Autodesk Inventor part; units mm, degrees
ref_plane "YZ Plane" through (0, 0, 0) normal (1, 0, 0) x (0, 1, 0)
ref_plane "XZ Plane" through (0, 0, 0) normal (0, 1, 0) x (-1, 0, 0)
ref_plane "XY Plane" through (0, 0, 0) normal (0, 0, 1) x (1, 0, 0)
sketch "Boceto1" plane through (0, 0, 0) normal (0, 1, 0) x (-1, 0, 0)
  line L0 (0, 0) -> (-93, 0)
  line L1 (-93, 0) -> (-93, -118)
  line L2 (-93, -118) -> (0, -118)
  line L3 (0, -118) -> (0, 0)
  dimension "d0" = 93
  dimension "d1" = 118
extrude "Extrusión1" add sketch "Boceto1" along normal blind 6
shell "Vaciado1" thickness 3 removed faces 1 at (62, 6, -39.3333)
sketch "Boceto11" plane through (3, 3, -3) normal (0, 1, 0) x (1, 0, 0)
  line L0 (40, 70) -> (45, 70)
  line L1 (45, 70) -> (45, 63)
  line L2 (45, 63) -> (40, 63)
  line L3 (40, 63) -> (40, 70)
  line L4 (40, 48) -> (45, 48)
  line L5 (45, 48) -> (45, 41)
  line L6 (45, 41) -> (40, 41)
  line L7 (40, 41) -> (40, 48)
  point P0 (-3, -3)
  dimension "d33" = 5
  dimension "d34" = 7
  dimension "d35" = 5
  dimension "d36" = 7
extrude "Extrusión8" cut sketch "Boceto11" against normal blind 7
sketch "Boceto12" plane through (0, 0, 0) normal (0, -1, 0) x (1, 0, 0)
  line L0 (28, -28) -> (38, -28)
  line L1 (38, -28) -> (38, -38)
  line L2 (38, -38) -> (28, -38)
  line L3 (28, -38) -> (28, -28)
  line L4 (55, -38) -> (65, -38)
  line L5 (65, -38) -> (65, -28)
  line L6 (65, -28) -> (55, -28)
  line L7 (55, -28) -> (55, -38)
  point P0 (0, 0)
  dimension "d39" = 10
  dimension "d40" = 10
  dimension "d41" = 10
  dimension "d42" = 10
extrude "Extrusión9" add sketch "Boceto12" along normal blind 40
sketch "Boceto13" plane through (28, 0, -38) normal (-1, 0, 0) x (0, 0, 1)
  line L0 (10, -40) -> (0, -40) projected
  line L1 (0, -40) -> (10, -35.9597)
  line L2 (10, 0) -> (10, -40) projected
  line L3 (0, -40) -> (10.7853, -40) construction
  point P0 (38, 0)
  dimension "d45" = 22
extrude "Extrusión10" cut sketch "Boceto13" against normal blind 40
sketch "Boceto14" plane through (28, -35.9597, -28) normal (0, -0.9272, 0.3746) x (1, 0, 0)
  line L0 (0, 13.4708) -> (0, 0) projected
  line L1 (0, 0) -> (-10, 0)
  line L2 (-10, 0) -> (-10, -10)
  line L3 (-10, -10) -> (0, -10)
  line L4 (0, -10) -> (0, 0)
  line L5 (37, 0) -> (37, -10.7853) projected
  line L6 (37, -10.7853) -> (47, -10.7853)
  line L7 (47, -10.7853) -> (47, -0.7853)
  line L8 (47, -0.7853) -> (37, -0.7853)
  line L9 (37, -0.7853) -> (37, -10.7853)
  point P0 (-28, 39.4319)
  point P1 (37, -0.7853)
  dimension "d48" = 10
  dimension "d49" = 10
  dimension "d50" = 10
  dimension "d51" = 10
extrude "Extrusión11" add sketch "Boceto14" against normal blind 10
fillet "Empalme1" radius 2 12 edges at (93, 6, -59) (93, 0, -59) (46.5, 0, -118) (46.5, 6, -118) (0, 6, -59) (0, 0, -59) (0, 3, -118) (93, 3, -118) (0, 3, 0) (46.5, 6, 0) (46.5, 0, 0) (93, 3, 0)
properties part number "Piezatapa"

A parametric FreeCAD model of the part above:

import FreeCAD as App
import Part
import Sketcher

V = App.Vector
Q = App.Units.Quantity


def edges_at(feature, points):
    """Names of the edges that pass closest to the given points."""
    edges = feature.Shape.Edges
    near = lambda p: min(range(len(edges)), key=lambda i: edges[i].distToShape(Part.Vertex(*p))[0])
    return sorted({f"Edge{near(p) + 1}" for p in points})


def faces_at(feature, points):
    """Names of the faces that lie closest to the given points."""
    faces = feature.Shape.Faces
    near = lambda p: min(range(len(faces)), key=lambda i: faces[i].distToShape(Part.Vertex(*p))[0])
    return sorted({f"Face{near(p) + 1}" for p in points})

doc = App.newDocument("Part")
params = doc.addObject("Spreadsheet::Sheet", "Params")
for row, (alias, value) in enumerate([
    ("sketch1_width", "93 mm"),
    ("sketch1_height", "118 mm"),
    ("pad1_length", "6 mm"),
    ("thickness_wall", "3 mm"),
    ("sketch2_width", "5 mm"),
    ("sketch2_height", "7 mm"),
    ("pocket1_length", "7 mm"),
    ("sketch3_width", "10 mm"),
    ("pad2_length", "40 mm"),
    ("sketch4_height", "10 mm"),
    ("pocket2_length", "40 mm"),
    ("sketch5_width", "10 mm"),
    ("pad3_length", "10 mm"),
    ("fillet_radius", "2 mm"),
], start=1):
    params.set(f"A{row}", alias)
    params.set(f"B{row}", "=" + value)
    params.setAlias(f"B{row}", alias)

body = doc.addObject("PartDesign::Body", "Body")

# Sketch on XZ plane
sketch1 = body.newObject("Sketcher::SketchObject", "Sketch")
sketch1.AttachmentSupport = (doc.getObject("XZ_Plane"), [""])
sketch1.MapMode = "FlatFace"
sketch1.addGeometry([
    Part.LineSegment(V(0, -118, 0), V(0, 0, 0)),
    Part.LineSegment(V(0, 0, 0), V(93, 0, 0)),
    Part.LineSegment(V(93, 0, 0), V(93, -118, 0)),
    Part.LineSegment(V(93, -118, 0), V(0, -118, 0)),
], False)
sketch1.addConstraint([
    Sketcher.Constraint("Coincident", 0, 2, 1, 1),
    Sketcher.Constraint("Coincident", 1, 2, 2, 1),
    Sketcher.Constraint("Coincident", 2, 2, 3, 1),
    Sketcher.Constraint("Coincident", 3, 2, 0, 1),
    Sketcher.Constraint("Vertical", 0),
    Sketcher.Constraint("Horizontal", 1),
    Sketcher.Constraint("Vertical", 2),
    Sketcher.Constraint("Horizontal", 3),
    Sketcher.Constraint("Coincident", 0, 2, -1, 1),
    Sketcher.Constraint("DistanceX", 1, 1, 1, 2, Q("93 mm")),
    Sketcher.Constraint("DistanceY", 0, 1, 0, 2, Q("118 mm")),
])
sketch1.setExpression("Constraints[9]", "Params.sketch1_width")
sketch1.setExpression("Constraints[10]", "Params.sketch1_height")
pad1 = body.newObject("PartDesign::Pad", "Pad")
pad1.Profile = sketch1
pad1.setExpression("Length", "Params.pad1_length")
pad1.Reversed = True
doc.recompute()

thickness = body.newObject("PartDesign::Thickness", "Thickness")
thickness.Base = (pad1, faces_at(pad1, [(62, 6, -39.333)]))
thickness.setExpression("Value", "Params.thickness_wall")
thickness.Reversed = True
thickness.Join = "Intersection"

# Sketch on XZ plane
sketch2 = body.newObject("Sketcher::SketchObject", "Sketch001")
sketch2.AttachmentSupport = (doc.getObject("XZ_Plane"), [""])
sketch2.MapMode = "FlatFace"
sketch2.AttachmentOffset = App.Placement(V(0, 0, -3), App.Rotation())
sketch2.addGeometry([
    Part.LineSegment(V(48, -73, 0), V(43, -73, 0)),  # 0
    Part.LineSegment(V(43, -73, 0), V(43, -66, 0)),  # 1
    Part.LineSegment(V(43, -66, 0), V(48, -66, 0)),  # 2
    Part.LineSegment(V(48, -66, 0), V(48, -73, 0)),  # 3
    Part.LineSegment(V(48, -51, 0), V(43, -51, 0)),  # 4
    Part.LineSegment(V(43, -51, 0), V(43, -44, 0)),  # 5
    Part.LineSegment(V(43, -44, 0), V(48, -44, 0)),  # 6
    Part.LineSegment(V(48, -44, 0), V(48, -51, 0)),  # 7
], False)
sketch2.addConstraint([
    Sketcher.Constraint("Coincident", 0, 2, 1, 1),
    Sketcher.Constraint("Coincident", 1, 2, 2, 1),
    Sketcher.Constraint("Coincident", 2, 2, 3, 1),
    Sketcher.Constraint("Coincident", 3, 2, 0, 1),
    Sketcher.Constraint("Coincident", 4, 2, 5, 1),
    Sketcher.Constraint("Coincident", 5, 2, 6, 1),
    Sketcher.Constraint("Coincident", 6, 2, 7, 1),
    Sketcher.Constraint("Coincident", 7, 2, 4, 1),
    Sketcher.Constraint("Horizontal", 0),
    Sketcher.Constraint("Vertical", 1),
    Sketcher.Constraint("Horizontal", 2),
    Sketcher.Constraint("Vertical", 3),
    Sketcher.Constraint("Horizontal", 4),
    Sketcher.Constraint("Vertical", 5),
    Sketcher.Constraint("Horizontal", 6),
    Sketcher.Constraint("Vertical", 7),
    Sketcher.Constraint("Vertical", 1, 2, 4, 2),
    Sketcher.Constraint("Vertical", 3, 2, 6, 2),
    Sketcher.Constraint("Equal", 3, 5),
    Sketcher.Constraint("DistanceX", 0, 2, 0, 1, Q("5 mm")),
    Sketcher.Constraint("DistanceY", 1, 1, 1, 2, Q("7 mm")),
    Sketcher.Constraint("DistanceX", -1, 1, 0, 2, Q("43 mm")),
    Sketcher.Constraint("DistanceY", 0, 2, -1, 1, Q("73 mm")),
    Sketcher.Constraint("DistanceY", 4, 2, -1, 1, Q("51 mm")),
])
sketch2.setExpression("Constraints[19]", "Params.sketch2_width")
sketch2.setExpression("Constraints[20]", "Params.sketch2_height")
pocket1 = body.newObject("PartDesign::Pocket", "Pocket")
pocket1.Profile = sketch2
pocket1.setExpression("Length", "Params.pocket1_length")
pocket1.Reversed = True

# Sketch on XZ plane
sketch3 = body.newObject("Sketcher::SketchObject", "Sketch002")
sketch3.AttachmentSupport = (doc.getObject("XZ_Plane"), [""])
sketch3.MapMode = "FlatFace"
sketch3.addGeometry([
    Part.LineSegment(V(38, -28, 0), V(28, -28, 0)),  # 0
    Part.LineSegment(V(28, -28, 0), V(28, -38, 0)),  # 1
    Part.LineSegment(V(28, -38, 0), V(38, -38, 0)),  # 2
    Part.LineSegment(V(38, -38, 0), V(38, -28, 0)),  # 3
    Part.LineSegment(V(55, -28, 0), V(55, -38, 0)),  # 4
    Part.LineSegment(V(55, -38, 0), V(65, -38, 0)),  # 5
    Part.LineSegment(V(65, -38, 0), V(65, -28, 0)),  # 6
    Part.LineSegment(V(65, -28, 0), V(55, -28, 0)),  # 7
], False)
sketch3.addConstraint([
    Sketcher.Constraint("Coincident", 0, 2, 1, 1),
    Sketcher.Constraint("Coincident", 1, 2, 2, 1),
    Sketcher.Constraint("Coincident", 2, 2, 3, 1),
    Sketcher.Constraint("Coincident", 3, 2, 0, 1),
    Sketcher.Constraint("Coincident", 4, 2, 5, 1),
    Sketcher.Constraint("Coincident", 5, 2, 6, 1),
    Sketcher.Constraint("Coincident", 6, 2, 7, 1),
    Sketcher.Constraint("Coincident", 7, 2, 4, 1),
    Sketcher.Constraint("Horizontal", 0),
    Sketcher.Constraint("Vertical", 1),
    Sketcher.Constraint("Horizontal", 2),
    Sketcher.Constraint("Vertical", 3),
    Sketcher.Constraint("Vertical", 4),
    Sketcher.Constraint("Horizontal", 5),
    Sketcher.Constraint("Vertical", 6),
    Sketcher.Constraint("Horizontal", 7),
    Sketcher.Constraint("Horizontal", 2, 2, 4, 2),
    Sketcher.Constraint("Horizontal", 3, 2, 6, 2),
    Sketcher.Constraint("Equal", 2, 5),
    Sketcher.Constraint("Equal", 7, 1),
    Sketcher.Constraint("DistanceX", 0, 2, 0, 1, Q("10 mm")),
    Sketcher.Constraint("DistanceX", -1, 1, 0, 2, Q("28 mm")),
    Sketcher.Constraint("DistanceY", 0, 2, -1, 1, Q("28 mm")),
    Sketcher.Constraint("DistanceX", -1, 1, 4, 2, Q("55 mm")),
])
sketch3.setExpression("Constraints[20]", "Params.sketch3_width")
pad2 = body.newObject("PartDesign::Pad", "Pad001")
pad2.Profile = sketch3
pad2.setExpression("Length", "Params.pad2_length")

# Sketch on YZ plane
sketch4 = body.newObject("Sketcher::SketchObject", "Sketch003")
sketch4.AttachmentSupport = (doc.getObject("YZ_Plane"), [""])
sketch4.MapMode = "FlatFace"
sketch4.AttachmentOffset = App.Placement(V(0, 0, 28), App.Rotation())
sketch4.addGeometry([
    Part.LineSegment(V(-40, -38, 0), V(-40, -28, 0)),
    Part.LineSegment(V(-40, -28, 0), V(-36, -28, 0)),
    Part.LineSegment(V(-36, -28, 0), V(-40, -38, 0)),
], False)
sketch4.addConstraint([
    Sketcher.Constraint("Coincident", 0, 2, 1, 1),
    Sketcher.Constraint("Coincident", 1, 2, 2, 1),
    Sketcher.Constraint("Coincident", 2, 2, 0, 1),
    Sketcher.Constraint("Vertical", 0),
    Sketcher.Constraint("Horizontal", 1),
    Sketcher.Constraint("DistanceY", 0, 1, 0, 2, Q("10 mm")),
    Sketcher.Constraint("Angle", 2, Q("-112.0002 deg")),
    Sketcher.Constraint("DistanceX", 0, 2, -1, 1, Q("40 mm")),
    Sketcher.Constraint("DistanceY", 0, 2, -1, 1, Q("28 mm")),
])
sketch4.setExpression("Constraints[5]", "Params.sketch4_height")
pocket2 = body.newObject("PartDesign::Pocket", "Pocket001")
pocket2.Profile = sketch4
pocket2.setExpression("Length", "Params.pocket2_length")
pocket2.Reversed = True

# Sketch on an angled plane
sketch5 = body.newObject("Sketcher::SketchObject", "Sketch004")
sketch5.Placement = App.Placement(V(28, -35.9597, -28), App.Rotation(V(1, 0, 0), V(0, 0.374606593, 0.927183855), V(0, -0.927183855, 0.374606593), "ZXY"))
sketch5.addGeometry([
    Part.LineSegment(V(0, -10, 0), V(0, 0, 0)),  # 0
    Part.LineSegment(V(0, 0, 0), V(-10, 0, 0)),  # 1
    Part.LineSegment(V(-10, 0, 0), V(-10, -10, 0)),  # 2
    Part.LineSegment(V(-10, -10, 0), V(0, -10, 0)),  # 3
    Part.LineSegment(V(47, -1, 0), V(37, -1, 0)),  # 4
    Part.LineSegment(V(37, -1, 0), V(37, -11, 0)),  # 5
    Part.LineSegment(V(37, -11, 0), V(47, -11, 0)),  # 6
    Part.LineSegment(V(47, -11, 0), V(47, -1, 0)),  # 7
], False)
sketch5.addConstraint([
    Sketcher.Constraint("Coincident", 0, 2, 1, 1),
    Sketcher.Constraint("Coincident", 1, 2, 2, 1),
    Sketcher.Constraint("Coincident", 2, 2, 3, 1),
    Sketcher.Constraint("Coincident", 3, 2, 0, 1),
    Sketcher.Constraint("Coincident", 4, 2, 5, 1),
    Sketcher.Constraint("Coincident", 5, 2, 6, 1),
    Sketcher.Constraint("Coincident", 6, 2, 7, 1),
    Sketcher.Constraint("Coincident", 7, 2, 4, 1),
    Sketcher.Constraint("Vertical", 0),
    Sketcher.Constraint("Horizontal", 1),
    Sketcher.Constraint("Vertical", 2),
    Sketcher.Constraint("Horizontal", 3),
    Sketcher.Constraint("Horizontal", 4),
    Sketcher.Constraint("Vertical", 5),
    Sketcher.Constraint("Horizontal", 6),
    Sketcher.Constraint("Vertical", 7),
    Sketcher.Constraint("Coincident", 0, 2, -1, 1),
    Sketcher.Constraint("Equal", 3, 4),
    Sketcher.Constraint("Equal", 6, 0),
    Sketcher.Constraint("Equal", 2, 5),
    Sketcher.Constraint("DistanceX", 1, 2, 1, 1, Q("10 mm")),
    Sketcher.Constraint("DistanceX", -1, 1, 4, 2, Q("37 mm")),
    Sketcher.Constraint("DistanceY", 4, 2, -1, 1, Q("0.7853 mm")),
])
sketch5.setExpression("Constraints[20]", "Params.sketch5_width")
pad3 = body.newObject("PartDesign::Pad", "Pad002")
pad3.Profile = sketch5
pad3.setExpression("Length", "Params.pad3_length")
pad3.Reversed = True
doc.recompute()

fillet = body.newObject("PartDesign::Fillet", "Fillet")
fillet.Base = (pad3, edges_at(pad3, [
    (93, 6, -59),
    (93, 0, -59),
    (46.5, 0, -118),
    (46.5, 6, -118),
    (0, 6, -59),
    (0, 0, -59),
    (0, 3, -118),
    (93, 3, -118),
    (0, 3, 0),
    (46.5, 6, 0),
    (46.5, 0, 0),
    (93, 3, 0),
]))
fillet.setExpression("Radius", "Params.fillet_radius")

doc.recompute()
